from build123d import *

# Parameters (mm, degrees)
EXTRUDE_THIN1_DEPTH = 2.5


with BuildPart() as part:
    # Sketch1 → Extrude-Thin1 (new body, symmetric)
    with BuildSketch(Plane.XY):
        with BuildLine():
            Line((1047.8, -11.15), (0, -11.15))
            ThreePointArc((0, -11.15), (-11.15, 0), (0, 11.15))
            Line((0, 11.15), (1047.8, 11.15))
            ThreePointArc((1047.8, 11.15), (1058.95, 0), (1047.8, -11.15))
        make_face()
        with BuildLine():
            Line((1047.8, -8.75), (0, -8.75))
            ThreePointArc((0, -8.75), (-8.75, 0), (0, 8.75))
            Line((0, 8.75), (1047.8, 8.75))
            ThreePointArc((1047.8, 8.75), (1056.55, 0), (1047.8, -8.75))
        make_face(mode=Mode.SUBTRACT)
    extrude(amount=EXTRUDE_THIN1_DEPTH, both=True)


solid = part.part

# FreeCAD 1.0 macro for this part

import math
import FreeCAD as App
import Part
import Sketcher

V = App.Vector

doc = App.newDocument("Part")
body = doc.addObject("PartDesign::Body", "Body")

# Sketch on XY plane
sketch1 = body.newObject("Sketcher::SketchObject", "Sketch")
sketch1.AttachmentSupport = (doc.getObject("XY_Plane"), [""])
sketch1.MapMode = "FlatFace"
sketch1.addGeometry([
    Part.LineSegment(V(0, -11, 0), V(1048, -11, 0)),  # 0
    Part.ArcOfCircle(Part.Circle(V(1048, 0, 0), V(0, 0, 1), 11), math.radians(-90), math.radians(90)),  # 1
    Part.LineSegment(V(1048, 11, 0), V(0, 11, 0)),  # 2
    Part.ArcOfCircle(Part.Circle(V(0, 0, 0), V(0, 0, 1), 11), math.radians(90), math.radians(270)),  # 3
    Part.LineSegment(V(1048, -9, 0), V(0, -9, 0)),  # 4
    Part.ArcOfCircle(Part.Circle(V(0, 0, 0), V(0, 0, 1), 9), math.radians(90), math.radians(270)),  # 5
    Part.LineSegment(V(0, 9, 0), V(1048, 9, 0)),  # 6
    Part.ArcOfCircle(Part.Circle(V(1048, 0, 0), V(0, 0, 1), 9), math.radians(-90), math.radians(90)),  # 7
], False)
sketch1.addConstraint([
    Sketcher.Constraint("Tangent", 0, 2, 1, 1),
    Sketcher.Constraint("Tangent", 1, 2, 2, 1),
    Sketcher.Constraint("Tangent", 2, 2, 3, 1),
    Sketcher.Constraint("Tangent", 3, 2, 0, 1),
    Sketcher.Constraint("Tangent", 4, 2, 5, 2),
    Sketcher.Constraint("Tangent", 5, 1, 6, 1),
    Sketcher.Constraint("Tangent", 6, 2, 7, 2),
    Sketcher.Constraint("Tangent", 7, 1, 4, 1),
    Sketcher.Constraint("Horizontal", 0),
    Sketcher.Constraint("Horizontal", 2),
    Sketcher.Constraint("Horizontal", 4),
    Sketcher.Constraint("Horizontal", 6),
    Sketcher.Constraint("Coincident", 3, 3, -1, 1),
    Sketcher.Constraint("Coincident", 5, 3, -1, 1),
    Sketcher.Constraint("Vertical", 7, 3, 0, 2),
    Sketcher.Constraint("Radius", 1, 11.15),
    Sketcher.Constraint("Radius", 5, 8.75),
    Sketcher.Constraint("DistanceX", 0, 1, 0, 2, 1047.8),
])
pad1 = body.newObject("PartDesign::Pad", "Pad")
pad1.Profile = sketch1
pad1.Length = 5
pad1.Midplane = True

doc.recompute()
